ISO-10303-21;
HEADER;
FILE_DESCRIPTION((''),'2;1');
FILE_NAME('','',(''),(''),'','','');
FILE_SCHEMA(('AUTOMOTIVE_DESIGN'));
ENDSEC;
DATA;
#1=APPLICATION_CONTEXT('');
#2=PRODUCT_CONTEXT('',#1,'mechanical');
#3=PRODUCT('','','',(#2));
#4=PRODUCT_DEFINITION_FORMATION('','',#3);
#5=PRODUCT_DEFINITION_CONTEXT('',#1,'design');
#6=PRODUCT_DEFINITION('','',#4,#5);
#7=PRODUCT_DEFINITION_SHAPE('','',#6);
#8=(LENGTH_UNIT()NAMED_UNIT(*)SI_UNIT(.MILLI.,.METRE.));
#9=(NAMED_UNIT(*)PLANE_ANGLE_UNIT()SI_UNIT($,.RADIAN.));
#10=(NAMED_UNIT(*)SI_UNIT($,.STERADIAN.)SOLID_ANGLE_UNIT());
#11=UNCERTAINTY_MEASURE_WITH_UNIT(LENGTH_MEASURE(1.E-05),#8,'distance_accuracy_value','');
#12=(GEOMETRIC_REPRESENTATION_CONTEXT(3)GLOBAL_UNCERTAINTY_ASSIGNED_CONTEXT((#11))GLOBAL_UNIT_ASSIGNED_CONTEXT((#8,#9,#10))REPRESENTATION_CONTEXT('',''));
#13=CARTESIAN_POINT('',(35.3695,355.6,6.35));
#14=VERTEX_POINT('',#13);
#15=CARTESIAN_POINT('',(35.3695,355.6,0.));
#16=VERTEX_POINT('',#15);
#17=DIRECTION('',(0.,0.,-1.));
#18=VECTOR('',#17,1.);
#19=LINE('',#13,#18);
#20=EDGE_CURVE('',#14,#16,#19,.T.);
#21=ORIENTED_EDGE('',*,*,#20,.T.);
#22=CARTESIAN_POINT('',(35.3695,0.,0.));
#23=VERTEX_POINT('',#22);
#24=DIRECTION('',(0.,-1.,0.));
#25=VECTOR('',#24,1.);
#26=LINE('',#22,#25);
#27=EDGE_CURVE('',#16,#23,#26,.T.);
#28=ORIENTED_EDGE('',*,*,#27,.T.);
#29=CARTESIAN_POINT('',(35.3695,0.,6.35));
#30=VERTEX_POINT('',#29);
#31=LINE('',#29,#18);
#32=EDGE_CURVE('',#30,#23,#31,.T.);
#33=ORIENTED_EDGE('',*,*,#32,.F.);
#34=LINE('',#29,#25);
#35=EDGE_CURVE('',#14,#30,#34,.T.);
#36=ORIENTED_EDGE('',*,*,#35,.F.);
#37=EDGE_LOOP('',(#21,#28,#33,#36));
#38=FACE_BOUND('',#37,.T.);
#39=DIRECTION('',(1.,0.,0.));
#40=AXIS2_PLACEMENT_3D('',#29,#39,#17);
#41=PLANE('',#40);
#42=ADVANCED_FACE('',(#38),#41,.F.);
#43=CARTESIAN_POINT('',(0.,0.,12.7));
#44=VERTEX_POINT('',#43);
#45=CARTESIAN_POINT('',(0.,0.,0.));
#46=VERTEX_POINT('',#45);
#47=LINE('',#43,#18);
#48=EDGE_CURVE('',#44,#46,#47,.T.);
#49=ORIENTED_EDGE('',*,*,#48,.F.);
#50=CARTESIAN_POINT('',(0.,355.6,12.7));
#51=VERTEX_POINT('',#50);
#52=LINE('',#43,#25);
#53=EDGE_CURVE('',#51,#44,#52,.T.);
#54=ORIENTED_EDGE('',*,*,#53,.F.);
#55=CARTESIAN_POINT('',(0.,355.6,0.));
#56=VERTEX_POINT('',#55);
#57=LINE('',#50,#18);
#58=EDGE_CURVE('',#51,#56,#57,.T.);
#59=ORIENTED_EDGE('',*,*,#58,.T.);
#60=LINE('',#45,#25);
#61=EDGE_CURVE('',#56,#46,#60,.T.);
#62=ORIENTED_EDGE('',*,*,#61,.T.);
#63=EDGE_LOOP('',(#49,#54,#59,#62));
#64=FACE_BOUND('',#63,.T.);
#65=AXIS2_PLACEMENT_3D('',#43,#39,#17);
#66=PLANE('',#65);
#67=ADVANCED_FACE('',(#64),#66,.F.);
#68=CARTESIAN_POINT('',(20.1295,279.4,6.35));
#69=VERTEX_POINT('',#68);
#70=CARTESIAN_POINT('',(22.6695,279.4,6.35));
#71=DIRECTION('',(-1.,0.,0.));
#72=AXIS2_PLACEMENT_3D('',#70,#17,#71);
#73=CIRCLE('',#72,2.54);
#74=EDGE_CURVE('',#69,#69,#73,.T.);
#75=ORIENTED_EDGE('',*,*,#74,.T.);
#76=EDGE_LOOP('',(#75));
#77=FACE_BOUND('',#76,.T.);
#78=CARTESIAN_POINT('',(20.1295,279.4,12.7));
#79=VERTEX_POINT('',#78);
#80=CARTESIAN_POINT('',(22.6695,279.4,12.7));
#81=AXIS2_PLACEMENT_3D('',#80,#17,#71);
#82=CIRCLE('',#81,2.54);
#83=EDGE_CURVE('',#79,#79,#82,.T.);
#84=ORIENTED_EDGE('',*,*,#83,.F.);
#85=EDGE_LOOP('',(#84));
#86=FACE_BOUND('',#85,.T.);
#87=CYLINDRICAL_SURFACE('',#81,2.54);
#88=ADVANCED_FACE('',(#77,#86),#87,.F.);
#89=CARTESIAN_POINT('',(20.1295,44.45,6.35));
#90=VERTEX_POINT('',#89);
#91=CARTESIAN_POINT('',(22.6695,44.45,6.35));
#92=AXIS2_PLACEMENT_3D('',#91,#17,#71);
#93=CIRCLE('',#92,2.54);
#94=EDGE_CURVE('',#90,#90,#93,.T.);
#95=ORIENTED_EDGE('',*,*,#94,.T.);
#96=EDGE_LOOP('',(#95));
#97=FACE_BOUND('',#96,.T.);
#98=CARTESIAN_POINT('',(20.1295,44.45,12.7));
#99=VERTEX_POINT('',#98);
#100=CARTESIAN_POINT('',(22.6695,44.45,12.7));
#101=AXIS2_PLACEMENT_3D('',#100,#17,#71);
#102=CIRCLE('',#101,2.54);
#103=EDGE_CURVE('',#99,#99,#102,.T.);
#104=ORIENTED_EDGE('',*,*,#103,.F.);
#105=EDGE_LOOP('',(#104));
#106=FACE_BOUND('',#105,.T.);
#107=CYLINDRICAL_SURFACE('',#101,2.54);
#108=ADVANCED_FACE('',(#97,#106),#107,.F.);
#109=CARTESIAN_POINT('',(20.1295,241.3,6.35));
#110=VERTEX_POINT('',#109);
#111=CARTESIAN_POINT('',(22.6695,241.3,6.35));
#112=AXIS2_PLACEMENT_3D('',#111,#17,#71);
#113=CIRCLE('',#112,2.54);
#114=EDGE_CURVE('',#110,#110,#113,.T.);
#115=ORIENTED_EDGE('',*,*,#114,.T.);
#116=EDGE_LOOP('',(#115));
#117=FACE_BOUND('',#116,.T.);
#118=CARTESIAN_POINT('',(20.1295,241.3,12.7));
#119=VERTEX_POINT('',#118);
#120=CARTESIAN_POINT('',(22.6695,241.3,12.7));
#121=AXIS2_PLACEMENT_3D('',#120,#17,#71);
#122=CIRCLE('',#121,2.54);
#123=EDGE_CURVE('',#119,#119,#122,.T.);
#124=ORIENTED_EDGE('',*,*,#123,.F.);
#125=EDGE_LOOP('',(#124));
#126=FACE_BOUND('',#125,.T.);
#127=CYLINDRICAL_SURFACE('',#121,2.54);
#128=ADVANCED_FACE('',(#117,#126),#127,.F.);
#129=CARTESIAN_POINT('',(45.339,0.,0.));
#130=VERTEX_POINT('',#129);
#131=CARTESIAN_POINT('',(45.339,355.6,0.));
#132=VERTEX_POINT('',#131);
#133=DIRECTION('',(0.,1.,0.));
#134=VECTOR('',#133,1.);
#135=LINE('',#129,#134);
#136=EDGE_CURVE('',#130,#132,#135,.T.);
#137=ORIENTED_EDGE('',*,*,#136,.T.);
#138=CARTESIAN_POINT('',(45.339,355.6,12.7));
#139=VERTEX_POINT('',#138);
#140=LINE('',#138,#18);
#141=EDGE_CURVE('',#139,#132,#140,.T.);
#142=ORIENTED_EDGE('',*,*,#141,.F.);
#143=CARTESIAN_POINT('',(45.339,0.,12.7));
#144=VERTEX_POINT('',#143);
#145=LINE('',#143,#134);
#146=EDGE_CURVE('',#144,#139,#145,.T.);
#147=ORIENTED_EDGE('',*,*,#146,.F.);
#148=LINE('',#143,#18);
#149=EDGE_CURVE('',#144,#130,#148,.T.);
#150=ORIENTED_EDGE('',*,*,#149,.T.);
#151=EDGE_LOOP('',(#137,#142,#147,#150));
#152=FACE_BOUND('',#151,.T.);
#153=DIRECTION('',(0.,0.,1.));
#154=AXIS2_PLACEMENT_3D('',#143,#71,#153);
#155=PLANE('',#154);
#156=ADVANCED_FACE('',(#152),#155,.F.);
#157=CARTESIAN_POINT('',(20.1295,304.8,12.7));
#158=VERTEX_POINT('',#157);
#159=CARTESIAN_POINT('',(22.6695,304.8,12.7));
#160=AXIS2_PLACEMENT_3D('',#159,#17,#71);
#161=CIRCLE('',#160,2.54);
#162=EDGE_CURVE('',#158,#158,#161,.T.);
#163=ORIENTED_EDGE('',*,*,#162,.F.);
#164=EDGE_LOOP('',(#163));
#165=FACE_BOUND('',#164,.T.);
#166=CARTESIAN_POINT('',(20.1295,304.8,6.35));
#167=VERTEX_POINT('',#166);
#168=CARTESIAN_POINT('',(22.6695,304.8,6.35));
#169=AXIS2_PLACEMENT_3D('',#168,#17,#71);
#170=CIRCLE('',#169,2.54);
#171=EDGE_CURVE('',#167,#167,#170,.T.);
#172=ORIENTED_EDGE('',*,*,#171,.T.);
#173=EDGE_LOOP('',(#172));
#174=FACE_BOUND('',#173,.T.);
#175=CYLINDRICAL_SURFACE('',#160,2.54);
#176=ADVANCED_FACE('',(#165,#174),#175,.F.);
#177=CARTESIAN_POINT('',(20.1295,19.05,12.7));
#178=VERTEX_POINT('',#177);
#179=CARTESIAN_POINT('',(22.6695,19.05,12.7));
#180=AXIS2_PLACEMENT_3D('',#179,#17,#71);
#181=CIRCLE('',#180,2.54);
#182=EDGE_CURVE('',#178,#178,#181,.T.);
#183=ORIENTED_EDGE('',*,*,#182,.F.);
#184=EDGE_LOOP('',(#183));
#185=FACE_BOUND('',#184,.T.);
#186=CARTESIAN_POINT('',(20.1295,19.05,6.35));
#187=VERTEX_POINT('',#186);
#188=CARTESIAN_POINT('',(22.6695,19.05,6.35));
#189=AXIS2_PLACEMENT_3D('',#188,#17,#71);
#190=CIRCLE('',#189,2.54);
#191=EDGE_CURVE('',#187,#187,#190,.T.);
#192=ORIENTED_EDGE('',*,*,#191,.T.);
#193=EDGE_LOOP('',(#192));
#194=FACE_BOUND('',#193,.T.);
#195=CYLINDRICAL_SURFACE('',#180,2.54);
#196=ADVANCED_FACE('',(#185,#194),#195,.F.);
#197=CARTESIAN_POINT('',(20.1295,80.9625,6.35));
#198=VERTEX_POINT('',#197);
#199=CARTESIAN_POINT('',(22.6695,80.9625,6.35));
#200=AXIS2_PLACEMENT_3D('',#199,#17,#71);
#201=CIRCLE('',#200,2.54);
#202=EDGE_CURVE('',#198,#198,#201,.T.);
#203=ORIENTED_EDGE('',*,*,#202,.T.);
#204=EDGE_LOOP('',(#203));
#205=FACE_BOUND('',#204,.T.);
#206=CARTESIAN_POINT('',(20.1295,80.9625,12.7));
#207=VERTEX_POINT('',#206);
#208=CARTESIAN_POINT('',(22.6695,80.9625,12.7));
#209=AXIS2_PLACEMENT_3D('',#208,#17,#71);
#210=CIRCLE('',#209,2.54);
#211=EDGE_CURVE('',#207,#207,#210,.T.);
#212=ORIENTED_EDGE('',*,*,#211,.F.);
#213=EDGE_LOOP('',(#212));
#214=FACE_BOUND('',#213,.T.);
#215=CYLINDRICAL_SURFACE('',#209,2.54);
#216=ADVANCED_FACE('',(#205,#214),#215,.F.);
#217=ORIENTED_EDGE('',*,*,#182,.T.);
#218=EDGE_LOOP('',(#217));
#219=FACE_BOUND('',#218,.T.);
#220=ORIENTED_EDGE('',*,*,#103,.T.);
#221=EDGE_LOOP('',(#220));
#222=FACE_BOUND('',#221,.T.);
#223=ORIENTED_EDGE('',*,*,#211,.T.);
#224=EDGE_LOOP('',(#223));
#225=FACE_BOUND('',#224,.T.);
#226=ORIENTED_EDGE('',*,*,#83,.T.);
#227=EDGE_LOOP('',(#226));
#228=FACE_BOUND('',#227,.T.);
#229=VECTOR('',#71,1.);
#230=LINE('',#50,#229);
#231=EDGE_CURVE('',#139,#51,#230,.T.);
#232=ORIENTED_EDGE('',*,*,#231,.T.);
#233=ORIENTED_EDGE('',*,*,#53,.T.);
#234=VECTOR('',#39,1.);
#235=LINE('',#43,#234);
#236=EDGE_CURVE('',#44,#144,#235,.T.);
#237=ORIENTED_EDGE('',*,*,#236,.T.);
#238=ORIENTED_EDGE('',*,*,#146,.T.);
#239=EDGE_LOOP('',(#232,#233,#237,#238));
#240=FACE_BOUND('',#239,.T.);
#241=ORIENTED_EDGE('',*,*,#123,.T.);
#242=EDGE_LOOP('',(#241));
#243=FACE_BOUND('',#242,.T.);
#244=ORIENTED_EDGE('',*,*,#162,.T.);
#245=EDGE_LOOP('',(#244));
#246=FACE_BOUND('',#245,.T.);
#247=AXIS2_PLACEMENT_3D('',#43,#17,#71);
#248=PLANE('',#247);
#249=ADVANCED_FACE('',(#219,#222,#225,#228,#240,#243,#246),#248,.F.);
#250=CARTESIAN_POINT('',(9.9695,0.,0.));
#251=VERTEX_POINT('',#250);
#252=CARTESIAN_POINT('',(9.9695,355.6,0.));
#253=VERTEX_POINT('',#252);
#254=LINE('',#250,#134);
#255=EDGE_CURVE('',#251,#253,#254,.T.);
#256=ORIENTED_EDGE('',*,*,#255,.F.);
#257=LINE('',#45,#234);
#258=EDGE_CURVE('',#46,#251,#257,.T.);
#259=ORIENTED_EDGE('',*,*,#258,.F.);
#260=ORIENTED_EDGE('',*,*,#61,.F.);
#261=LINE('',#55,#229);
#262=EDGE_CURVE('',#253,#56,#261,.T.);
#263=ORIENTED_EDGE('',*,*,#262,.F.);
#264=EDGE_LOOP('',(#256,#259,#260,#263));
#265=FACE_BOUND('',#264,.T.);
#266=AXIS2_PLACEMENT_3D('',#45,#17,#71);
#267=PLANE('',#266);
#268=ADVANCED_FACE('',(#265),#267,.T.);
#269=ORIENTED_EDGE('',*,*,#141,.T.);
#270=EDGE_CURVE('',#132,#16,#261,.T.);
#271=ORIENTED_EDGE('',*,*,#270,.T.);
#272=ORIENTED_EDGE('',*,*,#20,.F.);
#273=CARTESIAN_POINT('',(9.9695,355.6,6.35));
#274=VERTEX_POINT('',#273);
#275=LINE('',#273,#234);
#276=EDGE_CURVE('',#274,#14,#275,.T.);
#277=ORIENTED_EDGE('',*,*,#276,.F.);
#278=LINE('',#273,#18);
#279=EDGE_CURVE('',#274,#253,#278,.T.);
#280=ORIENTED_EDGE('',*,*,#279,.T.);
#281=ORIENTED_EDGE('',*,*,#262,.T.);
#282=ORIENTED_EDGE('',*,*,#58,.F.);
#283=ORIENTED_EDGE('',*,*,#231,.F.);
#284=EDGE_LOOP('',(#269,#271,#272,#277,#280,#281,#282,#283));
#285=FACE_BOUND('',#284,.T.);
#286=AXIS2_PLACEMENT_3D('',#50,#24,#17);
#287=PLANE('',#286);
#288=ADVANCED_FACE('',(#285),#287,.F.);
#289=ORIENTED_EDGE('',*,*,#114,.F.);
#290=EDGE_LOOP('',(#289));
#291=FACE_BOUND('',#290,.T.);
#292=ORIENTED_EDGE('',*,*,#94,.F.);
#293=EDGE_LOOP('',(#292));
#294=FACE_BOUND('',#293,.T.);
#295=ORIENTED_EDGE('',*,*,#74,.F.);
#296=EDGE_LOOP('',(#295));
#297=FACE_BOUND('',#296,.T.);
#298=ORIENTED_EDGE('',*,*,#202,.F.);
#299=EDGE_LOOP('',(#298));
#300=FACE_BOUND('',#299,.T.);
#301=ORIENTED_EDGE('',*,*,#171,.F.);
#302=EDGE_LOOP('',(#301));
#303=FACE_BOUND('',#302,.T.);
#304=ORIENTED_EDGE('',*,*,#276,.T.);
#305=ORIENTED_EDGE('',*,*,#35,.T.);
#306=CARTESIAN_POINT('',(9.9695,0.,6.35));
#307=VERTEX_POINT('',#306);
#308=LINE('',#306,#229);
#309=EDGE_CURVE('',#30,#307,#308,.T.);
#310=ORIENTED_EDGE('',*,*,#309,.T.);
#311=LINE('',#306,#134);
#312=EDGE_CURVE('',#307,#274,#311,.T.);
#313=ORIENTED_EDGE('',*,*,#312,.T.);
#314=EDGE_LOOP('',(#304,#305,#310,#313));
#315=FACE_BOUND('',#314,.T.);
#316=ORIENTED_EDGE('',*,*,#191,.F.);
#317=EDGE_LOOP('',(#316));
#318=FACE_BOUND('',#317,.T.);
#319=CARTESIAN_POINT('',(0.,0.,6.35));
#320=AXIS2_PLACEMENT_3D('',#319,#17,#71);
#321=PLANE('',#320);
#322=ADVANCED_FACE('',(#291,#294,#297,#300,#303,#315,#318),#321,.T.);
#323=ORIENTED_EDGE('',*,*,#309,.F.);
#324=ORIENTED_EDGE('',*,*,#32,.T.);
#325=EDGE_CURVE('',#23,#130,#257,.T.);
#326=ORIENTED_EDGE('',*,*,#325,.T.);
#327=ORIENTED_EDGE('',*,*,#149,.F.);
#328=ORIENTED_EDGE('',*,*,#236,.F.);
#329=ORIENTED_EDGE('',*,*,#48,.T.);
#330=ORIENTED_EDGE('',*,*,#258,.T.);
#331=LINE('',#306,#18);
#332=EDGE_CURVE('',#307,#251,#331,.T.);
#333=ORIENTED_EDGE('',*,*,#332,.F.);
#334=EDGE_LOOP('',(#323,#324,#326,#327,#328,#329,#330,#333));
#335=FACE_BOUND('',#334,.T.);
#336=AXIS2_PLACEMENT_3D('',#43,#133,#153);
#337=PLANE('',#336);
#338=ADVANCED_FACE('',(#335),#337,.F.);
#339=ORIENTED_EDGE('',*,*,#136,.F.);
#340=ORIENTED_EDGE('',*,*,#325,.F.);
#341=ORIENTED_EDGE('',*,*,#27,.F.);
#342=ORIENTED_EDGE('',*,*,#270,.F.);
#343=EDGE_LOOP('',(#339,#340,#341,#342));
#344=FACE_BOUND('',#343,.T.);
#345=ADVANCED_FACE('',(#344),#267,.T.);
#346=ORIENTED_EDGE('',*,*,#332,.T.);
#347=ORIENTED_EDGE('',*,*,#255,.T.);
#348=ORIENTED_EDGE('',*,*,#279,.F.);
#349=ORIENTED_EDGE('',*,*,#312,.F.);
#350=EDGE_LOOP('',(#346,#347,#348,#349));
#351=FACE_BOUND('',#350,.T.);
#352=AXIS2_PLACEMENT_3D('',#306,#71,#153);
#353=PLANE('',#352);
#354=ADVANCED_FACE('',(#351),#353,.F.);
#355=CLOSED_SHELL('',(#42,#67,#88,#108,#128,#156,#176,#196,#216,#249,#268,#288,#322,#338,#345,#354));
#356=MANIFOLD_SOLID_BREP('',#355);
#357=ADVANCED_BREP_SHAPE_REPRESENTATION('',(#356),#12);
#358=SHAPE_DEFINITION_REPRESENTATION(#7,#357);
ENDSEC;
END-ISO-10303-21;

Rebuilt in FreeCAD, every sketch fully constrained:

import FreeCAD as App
import Part
import Sketcher

V = App.Vector
Q = App.Units.Quantity

doc = App.newDocument("Part")
body = doc.addObject("PartDesign::Body", "Body")

# Sketch on XY plane
sketch1 = body.newObject("Sketcher::SketchObject", "Sketch")
sketch1.AttachmentSupport = (doc.getObject("XY_Plane"), [""])
sketch1.MapMode = "FlatFace"
sketch1.addGeometry(Part.LineSegment(V(0, 355.6, 0), V(0, 0, 0)), False)
sketch1.addGeometry(Part.LineSegment(V(0, 0, 0), V(45.339, 0, 0)), False)
sketch1.addGeometry(Part.LineSegment(V(45.339, 0, 0), V(45.339, 355.6, 0)), False)
sketch1.addGeometry(Part.LineSegment(V(45.339, 355.6, 0), V(0, 355.6, 0)), False)
sketch1.addConstraint(Sketcher.Constraint("Coincident", 0, 2, 1, 1))
sketch1.addConstraint(Sketcher.Constraint("Coincident", 1, 2, 2, 1))
sketch1.addConstraint(Sketcher.Constraint("Coincident", 2, 2, 3, 1))
sketch1.addConstraint(Sketcher.Constraint("Coincident", 3, 2, 0, 1))
sketch1.addConstraint(Sketcher.Constraint("Vertical", 0))
sketch1.addConstraint(Sketcher.Constraint("Horizontal", 1))
sketch1.addConstraint(Sketcher.Constraint("Vertical", 2))
sketch1.addConstraint(Sketcher.Constraint("Horizontal", 3))
sketch1.addConstraint(Sketcher.Constraint("Coincident", 0, 2, -1, 1))
sketch1.addConstraint(Sketcher.Constraint("DistanceY", 0, 2, 0, 1, Q("14 in")))
sketch1.addConstraint(Sketcher.Constraint("DistanceX", 1, 1, 1, 2, Q("1.785 in")))
pad1 = body.newObject("PartDesign::Pad", "Pad")
pad1.Profile = sketch1
pad1.Length = Q("0.5 in")

# Sketch on XY plane
sketch2 = body.newObject("Sketcher::SketchObject", "Sketch001")
sketch2.AttachmentSupport = (doc.getObject("XY_Plane"), [""])
sketch2.MapMode = "FlatFace"
sketch2.addGeometry(Part.LineSegment(V(35.3695, 355.6, 0), V(35.3695, 0, 0)), False)
sketch2.addGeometry(Part.LineSegment(V(35.3695, 0, 0), V(9.9695, 0, 0)), False)
sketch2.addGeometry(Part.LineSegment(V(9.9695, 0, 0), V(9.9695, 355.6, 0)), False)
sketch2.addGeometry(Part.LineSegment(V(9.9695, 355.6, 0), V(35.3695, 355.6, 0)), False)
sketch2.addConstraint(Sketcher.Constraint("Coincident", 0, 2, 1, 1))
sketch2.addConstraint(Sketcher.Constraint("Coincident", 1, 2, 2, 1))
sketch2.addConstraint(Sketcher.Constraint("Coincident", 2, 2, 3, 1))
sketch2.addConstraint(Sketcher.Constraint("Coincident", 3, 2, 0, 1))
sketch2.addConstraint(Sketcher.Constraint("Vertical", 0))
sketch2.addConstraint(Sketcher.Constraint("Horizontal", 1))
sketch2.addConstraint(Sketcher.Constraint("Vertical", 2))
sketch2.addConstraint(Sketcher.Constraint("Horizontal", 3))
sketch2.addConstraint(Sketcher.Constraint("PointOnObject", 0, 2, -1))
sketch2.addConstraint(Sketcher.Constraint("DistanceX", 1, 2, 1, 1, Q("1 in")))
sketch2.addConstraint(Sketcher.Constraint("DistanceY", 0, 2, 0, 1, Q("14 in")))
sketch2.addConstraint(Sketcher.Constraint("DistanceX", -1, 1, 0, 2, Q("1.3925 in")))
pocket1 = body.newObject("PartDesign::Pocket", "Pocket")
pocket1.Profile = sketch2
pocket1.Length = Q("0.25 in")
pocket1.Reversed = True

# Sketch on XY plane
sketch3 = body.newObject("Sketcher::SketchObject", "Sketch002")
sketch3.AttachmentSupport = (doc.getObject("XY_Plane"), [""])
sketch3.MapMode = "FlatFace"
sketch3.AttachmentOffset = App.Placement(V(0, 0, 0.25 * 25.4), App.Rotation())
sketch3.addGeometry(Part.Circle(V(22.6695, 19.05, 0), V(0, 0, 1), 2.54), False)
sketch3.addGeometry(Part.Circle(V(22.6695, 44.45, 0), V(0, 0, 1), 2.54), False)
sketch3.addGeometry(Part.Circle(V(22.6695, 304.8, 0), V(0, 0, 1), 2.54), False)
sketch3.addGeometry(Part.Circle(V(22.6695, 279.4, 0), V(0, 0, 1), 2.54), False)
sketch3.addGeometry(Part.Circle(V(22.6695, 241.3, 0), V(0, 0, 1), 2.54), False)
sketch3.addGeometry(Part.Circle(V(22.6695, 80.9625, 0), V(0, 0, 1), 2.54), False)
sketch3.addConstraint(Sketcher.Constraint("Equal", 0, 1))
sketch3.addConstraint(Sketcher.Constraint("Equal", 1, 2))
sketch3.addConstraint(Sketcher.Constraint("Equal", 2, 3))
sketch3.addConstraint(Sketcher.Constraint("Equal", 3, 4))
sketch3.addConstraint(Sketcher.Constraint("Equal", 4, 5))
sketch3.addConstraint(Sketcher.Constraint("Vertical", 0, 3, 1, 3))
sketch3.addConstraint(Sketcher.Constraint("Vertical", 1, 3, 2, 3))
sketch3.addConstraint(Sketcher.Constraint("Vertical", 2, 3, 3, 3))
sketch3.addConstraint(Sketcher.Constraint("Vertical", 3, 3, 4, 3))
sketch3.addConstraint(Sketcher.Constraint("Vertical", 4, 3, 5, 3))
sketch3.addConstraint(Sketcher.Constraint("Diameter", 0, Q("0.2 in")))
sketch3.addConstraint(Sketcher.Constraint("DistanceY", -1, 1, 2, 3, Q("12 in")))
sketch3.addConstraint(Sketcher.Constraint("DistanceY", -1, 1, 3, 3, Q("11 in")))
sketch3.addConstraint(Sketcher.Constraint("DistanceY", 0, 3, 1, 3, Q("1 in")))
sketch3.addConstraint(Sketcher.Constraint("DistanceY", -1, 1, 4, 3, Q("9.5 in")))
sketch3.addConstraint(Sketcher.Constraint("DistanceY", -1, 1, 0, 3, Q("0.75 in")))
sketch3.addConstraint(Sketcher.Constraint("DistanceY", -1, 1, 5, 3, Q("3.1875 in")))
sketch3.addConstraint(Sketcher.Constraint("DistanceX", -1, 1, 0, 3, Q("0.8925 in")))
pocket2 = body.newObject("PartDesign::Pocket", "Pocket001")
pocket2.Profile = sketch3
pocket2.Type = "ThroughAll"
pocket2.Reversed = True

doc.recompute()
